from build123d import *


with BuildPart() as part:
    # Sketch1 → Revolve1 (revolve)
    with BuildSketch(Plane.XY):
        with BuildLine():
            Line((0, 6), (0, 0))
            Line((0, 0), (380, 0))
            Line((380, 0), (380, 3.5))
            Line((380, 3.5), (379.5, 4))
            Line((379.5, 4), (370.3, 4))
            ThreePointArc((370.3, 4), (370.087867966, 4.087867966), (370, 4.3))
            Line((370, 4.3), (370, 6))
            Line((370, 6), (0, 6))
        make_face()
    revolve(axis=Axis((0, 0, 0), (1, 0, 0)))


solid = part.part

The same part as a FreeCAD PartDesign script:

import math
import FreeCAD as App
import Part
import Sketcher
Q = App.Units.Quantity

doc = App.newDocument("Part")
body = doc.addObject("PartDesign::Body", "Body")

sketch1 = body.newObject("Sketcher::SketchObject", "Sketch")
sketch1.AttachmentSupport = (doc.getObject("XY_Plane"), [""])
sketch1.MapMode = "FlatFace"
sketch1.addGeometry([
    Part.LineSegment(App.Vector(0, 6, 0), App.Vector(0, 0, 0)),
    Part.LineSegment(App.Vector(0, 0, 0), App.Vector(380, 0, 0)),
    Part.LineSegment(App.Vector(380, 0, 0), App.Vector(380, 3.5, 0)),
    Part.LineSegment(App.Vector(380, 3.5, 0), App.Vector(379.5, 4, 0)),
    Part.LineSegment(App.Vector(379.5, 4, 0), App.Vector(370.3, 4, 0)),
    Part.ArcOfCircle(Part.Circle(App.Vector(370.3, 4.3, 0), App.Vector(0, 0, 1), 0.3), math.radians(-180), math.radians(-90)),
    Part.LineSegment(App.Vector(370, 4.3, 0), App.Vector(370, 6, 0)),
    Part.LineSegment(App.Vector(370, 6, 0), App.Vector(0, 6, 0)),
], False)
sketch1.addConstraint([
    Sketcher.Constraint("Coincident", 0, 2, 1, 1),
    Sketcher.Constraint("Coincident", 1, 2, 2, 1),
    Sketcher.Constraint("Coincident", 2, 2, 3, 1),
    Sketcher.Constraint("Coincident", 3, 2, 4, 1),
    Sketcher.Constraint("Tangent", 4, 2, 5, 2),
    Sketcher.Constraint("Tangent", 5, 1, 6, 1),
    Sketcher.Constraint("Coincident", 6, 2, 7, 1),
    Sketcher.Constraint("Coincident", 7, 2, 0, 1),
    Sketcher.Constraint("Vertical", 0),
    Sketcher.Constraint("Horizontal", 1),
    Sketcher.Constraint("Vertical", 2),
    Sketcher.Constraint("Horizontal", 4),
    Sketcher.Constraint("Vertical", 6),
    Sketcher.Constraint("Horizontal", 7),
    Sketcher.Constraint("Coincident", 0, 2, -1, 1),
    Sketcher.Constraint("Radius", 5, 0.3),
    Sketcher.Constraint("DistanceX", 1, 1, 1, 2, 380.0),
    Sketcher.Constraint("DistanceX", 7, 2, 7, 1, 370.0),
    Sketcher.Constraint("DistanceY", 0, 2, 0, 1, 6.0),
    Sketcher.Constraint("Angle", 3, Q("135 deg")),
    Sketcher.Constraint("DistanceX", 4, 2, 4, 1, 9.2),
    Sketcher.Constraint("DistanceY", 2, 1, 2, 2, 3.5),
])
revolution = body.newObject("PartDesign::Revolution", "Revolution")
revolution.Profile = sketch1
revolution.ReferenceAxis = (sketch1, ["H_Axis"])
revolution.Angle = 360

doc.recompute()
